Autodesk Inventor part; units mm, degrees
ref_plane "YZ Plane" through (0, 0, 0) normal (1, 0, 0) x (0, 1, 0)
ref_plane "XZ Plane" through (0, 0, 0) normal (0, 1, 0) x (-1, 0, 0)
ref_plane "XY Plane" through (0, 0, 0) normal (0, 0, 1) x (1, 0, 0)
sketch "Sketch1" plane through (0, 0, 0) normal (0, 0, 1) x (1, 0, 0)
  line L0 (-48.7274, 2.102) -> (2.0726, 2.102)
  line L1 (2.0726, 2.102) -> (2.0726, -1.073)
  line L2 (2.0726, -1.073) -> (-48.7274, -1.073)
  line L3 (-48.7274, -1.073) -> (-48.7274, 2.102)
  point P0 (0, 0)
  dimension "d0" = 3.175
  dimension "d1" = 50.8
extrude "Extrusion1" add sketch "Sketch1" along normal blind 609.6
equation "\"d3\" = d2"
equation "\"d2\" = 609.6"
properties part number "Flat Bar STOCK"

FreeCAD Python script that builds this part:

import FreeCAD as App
import Part
import Sketcher

V = App.Vector
Q = App.Units.Quantity


def add_polygon(sketch, points):
    """Adds a closed chain of lines whose ends are joined by coincident constraints."""
    first, n = sketch.GeometryCount, len(points)
    for a, b in zip(points, points[1:] + points[:1]):
        sketch.addGeometry(Part.LineSegment(App.Vector(*a, 0), App.Vector(*b, 0)), False)
    for i in range(n):
        sketch.addConstraint(Sketcher.Constraint("Coincident", first + i, 2, first + (i + 1) % n, 1))

doc = App.newDocument("Part")
body = doc.addObject("PartDesign::Body", "Body")

# Sketch on XY plane
sketch1 = doc.addObject("Sketcher::SketchObject", "Sketch")
body.addObject(sketch1)
sketch1.AttachmentSupport = (doc.XY_Plane, [""])
sketch1.MapMode = "FlatFace"
add_polygon(sketch1, [(2.1, 2.1), (-48.7, 2.1), (-48.7, -1.1), (2.1, -1.1)])  # lines 0-3
sketch1.addConstraint([
    Sketcher.Constraint("Horizontal", 0),
    Sketcher.Constraint("Vertical", 1),
    Sketcher.Constraint("Horizontal", 2),
    Sketcher.Constraint("Vertical", 3),
    Sketcher.Constraint("DistanceX", 0, 2, 0, 1, Q("2 in")),
    Sketcher.Constraint("DistanceY", 1, 2, 1, 1, Q("0.125 in")),
    Sketcher.Constraint("DistanceX", 0, 2, -1, 1, Q("1.9184 in")),
    Sketcher.Constraint("DistanceY", -1, 1, 0, 2, 2.102),
])
pad1 = doc.addObject("PartDesign::Pad", "Pad")
body.addObject(pad1)
pad1.Profile = sketch1
pad1.Length = Q("24 in")

doc.recompute()
